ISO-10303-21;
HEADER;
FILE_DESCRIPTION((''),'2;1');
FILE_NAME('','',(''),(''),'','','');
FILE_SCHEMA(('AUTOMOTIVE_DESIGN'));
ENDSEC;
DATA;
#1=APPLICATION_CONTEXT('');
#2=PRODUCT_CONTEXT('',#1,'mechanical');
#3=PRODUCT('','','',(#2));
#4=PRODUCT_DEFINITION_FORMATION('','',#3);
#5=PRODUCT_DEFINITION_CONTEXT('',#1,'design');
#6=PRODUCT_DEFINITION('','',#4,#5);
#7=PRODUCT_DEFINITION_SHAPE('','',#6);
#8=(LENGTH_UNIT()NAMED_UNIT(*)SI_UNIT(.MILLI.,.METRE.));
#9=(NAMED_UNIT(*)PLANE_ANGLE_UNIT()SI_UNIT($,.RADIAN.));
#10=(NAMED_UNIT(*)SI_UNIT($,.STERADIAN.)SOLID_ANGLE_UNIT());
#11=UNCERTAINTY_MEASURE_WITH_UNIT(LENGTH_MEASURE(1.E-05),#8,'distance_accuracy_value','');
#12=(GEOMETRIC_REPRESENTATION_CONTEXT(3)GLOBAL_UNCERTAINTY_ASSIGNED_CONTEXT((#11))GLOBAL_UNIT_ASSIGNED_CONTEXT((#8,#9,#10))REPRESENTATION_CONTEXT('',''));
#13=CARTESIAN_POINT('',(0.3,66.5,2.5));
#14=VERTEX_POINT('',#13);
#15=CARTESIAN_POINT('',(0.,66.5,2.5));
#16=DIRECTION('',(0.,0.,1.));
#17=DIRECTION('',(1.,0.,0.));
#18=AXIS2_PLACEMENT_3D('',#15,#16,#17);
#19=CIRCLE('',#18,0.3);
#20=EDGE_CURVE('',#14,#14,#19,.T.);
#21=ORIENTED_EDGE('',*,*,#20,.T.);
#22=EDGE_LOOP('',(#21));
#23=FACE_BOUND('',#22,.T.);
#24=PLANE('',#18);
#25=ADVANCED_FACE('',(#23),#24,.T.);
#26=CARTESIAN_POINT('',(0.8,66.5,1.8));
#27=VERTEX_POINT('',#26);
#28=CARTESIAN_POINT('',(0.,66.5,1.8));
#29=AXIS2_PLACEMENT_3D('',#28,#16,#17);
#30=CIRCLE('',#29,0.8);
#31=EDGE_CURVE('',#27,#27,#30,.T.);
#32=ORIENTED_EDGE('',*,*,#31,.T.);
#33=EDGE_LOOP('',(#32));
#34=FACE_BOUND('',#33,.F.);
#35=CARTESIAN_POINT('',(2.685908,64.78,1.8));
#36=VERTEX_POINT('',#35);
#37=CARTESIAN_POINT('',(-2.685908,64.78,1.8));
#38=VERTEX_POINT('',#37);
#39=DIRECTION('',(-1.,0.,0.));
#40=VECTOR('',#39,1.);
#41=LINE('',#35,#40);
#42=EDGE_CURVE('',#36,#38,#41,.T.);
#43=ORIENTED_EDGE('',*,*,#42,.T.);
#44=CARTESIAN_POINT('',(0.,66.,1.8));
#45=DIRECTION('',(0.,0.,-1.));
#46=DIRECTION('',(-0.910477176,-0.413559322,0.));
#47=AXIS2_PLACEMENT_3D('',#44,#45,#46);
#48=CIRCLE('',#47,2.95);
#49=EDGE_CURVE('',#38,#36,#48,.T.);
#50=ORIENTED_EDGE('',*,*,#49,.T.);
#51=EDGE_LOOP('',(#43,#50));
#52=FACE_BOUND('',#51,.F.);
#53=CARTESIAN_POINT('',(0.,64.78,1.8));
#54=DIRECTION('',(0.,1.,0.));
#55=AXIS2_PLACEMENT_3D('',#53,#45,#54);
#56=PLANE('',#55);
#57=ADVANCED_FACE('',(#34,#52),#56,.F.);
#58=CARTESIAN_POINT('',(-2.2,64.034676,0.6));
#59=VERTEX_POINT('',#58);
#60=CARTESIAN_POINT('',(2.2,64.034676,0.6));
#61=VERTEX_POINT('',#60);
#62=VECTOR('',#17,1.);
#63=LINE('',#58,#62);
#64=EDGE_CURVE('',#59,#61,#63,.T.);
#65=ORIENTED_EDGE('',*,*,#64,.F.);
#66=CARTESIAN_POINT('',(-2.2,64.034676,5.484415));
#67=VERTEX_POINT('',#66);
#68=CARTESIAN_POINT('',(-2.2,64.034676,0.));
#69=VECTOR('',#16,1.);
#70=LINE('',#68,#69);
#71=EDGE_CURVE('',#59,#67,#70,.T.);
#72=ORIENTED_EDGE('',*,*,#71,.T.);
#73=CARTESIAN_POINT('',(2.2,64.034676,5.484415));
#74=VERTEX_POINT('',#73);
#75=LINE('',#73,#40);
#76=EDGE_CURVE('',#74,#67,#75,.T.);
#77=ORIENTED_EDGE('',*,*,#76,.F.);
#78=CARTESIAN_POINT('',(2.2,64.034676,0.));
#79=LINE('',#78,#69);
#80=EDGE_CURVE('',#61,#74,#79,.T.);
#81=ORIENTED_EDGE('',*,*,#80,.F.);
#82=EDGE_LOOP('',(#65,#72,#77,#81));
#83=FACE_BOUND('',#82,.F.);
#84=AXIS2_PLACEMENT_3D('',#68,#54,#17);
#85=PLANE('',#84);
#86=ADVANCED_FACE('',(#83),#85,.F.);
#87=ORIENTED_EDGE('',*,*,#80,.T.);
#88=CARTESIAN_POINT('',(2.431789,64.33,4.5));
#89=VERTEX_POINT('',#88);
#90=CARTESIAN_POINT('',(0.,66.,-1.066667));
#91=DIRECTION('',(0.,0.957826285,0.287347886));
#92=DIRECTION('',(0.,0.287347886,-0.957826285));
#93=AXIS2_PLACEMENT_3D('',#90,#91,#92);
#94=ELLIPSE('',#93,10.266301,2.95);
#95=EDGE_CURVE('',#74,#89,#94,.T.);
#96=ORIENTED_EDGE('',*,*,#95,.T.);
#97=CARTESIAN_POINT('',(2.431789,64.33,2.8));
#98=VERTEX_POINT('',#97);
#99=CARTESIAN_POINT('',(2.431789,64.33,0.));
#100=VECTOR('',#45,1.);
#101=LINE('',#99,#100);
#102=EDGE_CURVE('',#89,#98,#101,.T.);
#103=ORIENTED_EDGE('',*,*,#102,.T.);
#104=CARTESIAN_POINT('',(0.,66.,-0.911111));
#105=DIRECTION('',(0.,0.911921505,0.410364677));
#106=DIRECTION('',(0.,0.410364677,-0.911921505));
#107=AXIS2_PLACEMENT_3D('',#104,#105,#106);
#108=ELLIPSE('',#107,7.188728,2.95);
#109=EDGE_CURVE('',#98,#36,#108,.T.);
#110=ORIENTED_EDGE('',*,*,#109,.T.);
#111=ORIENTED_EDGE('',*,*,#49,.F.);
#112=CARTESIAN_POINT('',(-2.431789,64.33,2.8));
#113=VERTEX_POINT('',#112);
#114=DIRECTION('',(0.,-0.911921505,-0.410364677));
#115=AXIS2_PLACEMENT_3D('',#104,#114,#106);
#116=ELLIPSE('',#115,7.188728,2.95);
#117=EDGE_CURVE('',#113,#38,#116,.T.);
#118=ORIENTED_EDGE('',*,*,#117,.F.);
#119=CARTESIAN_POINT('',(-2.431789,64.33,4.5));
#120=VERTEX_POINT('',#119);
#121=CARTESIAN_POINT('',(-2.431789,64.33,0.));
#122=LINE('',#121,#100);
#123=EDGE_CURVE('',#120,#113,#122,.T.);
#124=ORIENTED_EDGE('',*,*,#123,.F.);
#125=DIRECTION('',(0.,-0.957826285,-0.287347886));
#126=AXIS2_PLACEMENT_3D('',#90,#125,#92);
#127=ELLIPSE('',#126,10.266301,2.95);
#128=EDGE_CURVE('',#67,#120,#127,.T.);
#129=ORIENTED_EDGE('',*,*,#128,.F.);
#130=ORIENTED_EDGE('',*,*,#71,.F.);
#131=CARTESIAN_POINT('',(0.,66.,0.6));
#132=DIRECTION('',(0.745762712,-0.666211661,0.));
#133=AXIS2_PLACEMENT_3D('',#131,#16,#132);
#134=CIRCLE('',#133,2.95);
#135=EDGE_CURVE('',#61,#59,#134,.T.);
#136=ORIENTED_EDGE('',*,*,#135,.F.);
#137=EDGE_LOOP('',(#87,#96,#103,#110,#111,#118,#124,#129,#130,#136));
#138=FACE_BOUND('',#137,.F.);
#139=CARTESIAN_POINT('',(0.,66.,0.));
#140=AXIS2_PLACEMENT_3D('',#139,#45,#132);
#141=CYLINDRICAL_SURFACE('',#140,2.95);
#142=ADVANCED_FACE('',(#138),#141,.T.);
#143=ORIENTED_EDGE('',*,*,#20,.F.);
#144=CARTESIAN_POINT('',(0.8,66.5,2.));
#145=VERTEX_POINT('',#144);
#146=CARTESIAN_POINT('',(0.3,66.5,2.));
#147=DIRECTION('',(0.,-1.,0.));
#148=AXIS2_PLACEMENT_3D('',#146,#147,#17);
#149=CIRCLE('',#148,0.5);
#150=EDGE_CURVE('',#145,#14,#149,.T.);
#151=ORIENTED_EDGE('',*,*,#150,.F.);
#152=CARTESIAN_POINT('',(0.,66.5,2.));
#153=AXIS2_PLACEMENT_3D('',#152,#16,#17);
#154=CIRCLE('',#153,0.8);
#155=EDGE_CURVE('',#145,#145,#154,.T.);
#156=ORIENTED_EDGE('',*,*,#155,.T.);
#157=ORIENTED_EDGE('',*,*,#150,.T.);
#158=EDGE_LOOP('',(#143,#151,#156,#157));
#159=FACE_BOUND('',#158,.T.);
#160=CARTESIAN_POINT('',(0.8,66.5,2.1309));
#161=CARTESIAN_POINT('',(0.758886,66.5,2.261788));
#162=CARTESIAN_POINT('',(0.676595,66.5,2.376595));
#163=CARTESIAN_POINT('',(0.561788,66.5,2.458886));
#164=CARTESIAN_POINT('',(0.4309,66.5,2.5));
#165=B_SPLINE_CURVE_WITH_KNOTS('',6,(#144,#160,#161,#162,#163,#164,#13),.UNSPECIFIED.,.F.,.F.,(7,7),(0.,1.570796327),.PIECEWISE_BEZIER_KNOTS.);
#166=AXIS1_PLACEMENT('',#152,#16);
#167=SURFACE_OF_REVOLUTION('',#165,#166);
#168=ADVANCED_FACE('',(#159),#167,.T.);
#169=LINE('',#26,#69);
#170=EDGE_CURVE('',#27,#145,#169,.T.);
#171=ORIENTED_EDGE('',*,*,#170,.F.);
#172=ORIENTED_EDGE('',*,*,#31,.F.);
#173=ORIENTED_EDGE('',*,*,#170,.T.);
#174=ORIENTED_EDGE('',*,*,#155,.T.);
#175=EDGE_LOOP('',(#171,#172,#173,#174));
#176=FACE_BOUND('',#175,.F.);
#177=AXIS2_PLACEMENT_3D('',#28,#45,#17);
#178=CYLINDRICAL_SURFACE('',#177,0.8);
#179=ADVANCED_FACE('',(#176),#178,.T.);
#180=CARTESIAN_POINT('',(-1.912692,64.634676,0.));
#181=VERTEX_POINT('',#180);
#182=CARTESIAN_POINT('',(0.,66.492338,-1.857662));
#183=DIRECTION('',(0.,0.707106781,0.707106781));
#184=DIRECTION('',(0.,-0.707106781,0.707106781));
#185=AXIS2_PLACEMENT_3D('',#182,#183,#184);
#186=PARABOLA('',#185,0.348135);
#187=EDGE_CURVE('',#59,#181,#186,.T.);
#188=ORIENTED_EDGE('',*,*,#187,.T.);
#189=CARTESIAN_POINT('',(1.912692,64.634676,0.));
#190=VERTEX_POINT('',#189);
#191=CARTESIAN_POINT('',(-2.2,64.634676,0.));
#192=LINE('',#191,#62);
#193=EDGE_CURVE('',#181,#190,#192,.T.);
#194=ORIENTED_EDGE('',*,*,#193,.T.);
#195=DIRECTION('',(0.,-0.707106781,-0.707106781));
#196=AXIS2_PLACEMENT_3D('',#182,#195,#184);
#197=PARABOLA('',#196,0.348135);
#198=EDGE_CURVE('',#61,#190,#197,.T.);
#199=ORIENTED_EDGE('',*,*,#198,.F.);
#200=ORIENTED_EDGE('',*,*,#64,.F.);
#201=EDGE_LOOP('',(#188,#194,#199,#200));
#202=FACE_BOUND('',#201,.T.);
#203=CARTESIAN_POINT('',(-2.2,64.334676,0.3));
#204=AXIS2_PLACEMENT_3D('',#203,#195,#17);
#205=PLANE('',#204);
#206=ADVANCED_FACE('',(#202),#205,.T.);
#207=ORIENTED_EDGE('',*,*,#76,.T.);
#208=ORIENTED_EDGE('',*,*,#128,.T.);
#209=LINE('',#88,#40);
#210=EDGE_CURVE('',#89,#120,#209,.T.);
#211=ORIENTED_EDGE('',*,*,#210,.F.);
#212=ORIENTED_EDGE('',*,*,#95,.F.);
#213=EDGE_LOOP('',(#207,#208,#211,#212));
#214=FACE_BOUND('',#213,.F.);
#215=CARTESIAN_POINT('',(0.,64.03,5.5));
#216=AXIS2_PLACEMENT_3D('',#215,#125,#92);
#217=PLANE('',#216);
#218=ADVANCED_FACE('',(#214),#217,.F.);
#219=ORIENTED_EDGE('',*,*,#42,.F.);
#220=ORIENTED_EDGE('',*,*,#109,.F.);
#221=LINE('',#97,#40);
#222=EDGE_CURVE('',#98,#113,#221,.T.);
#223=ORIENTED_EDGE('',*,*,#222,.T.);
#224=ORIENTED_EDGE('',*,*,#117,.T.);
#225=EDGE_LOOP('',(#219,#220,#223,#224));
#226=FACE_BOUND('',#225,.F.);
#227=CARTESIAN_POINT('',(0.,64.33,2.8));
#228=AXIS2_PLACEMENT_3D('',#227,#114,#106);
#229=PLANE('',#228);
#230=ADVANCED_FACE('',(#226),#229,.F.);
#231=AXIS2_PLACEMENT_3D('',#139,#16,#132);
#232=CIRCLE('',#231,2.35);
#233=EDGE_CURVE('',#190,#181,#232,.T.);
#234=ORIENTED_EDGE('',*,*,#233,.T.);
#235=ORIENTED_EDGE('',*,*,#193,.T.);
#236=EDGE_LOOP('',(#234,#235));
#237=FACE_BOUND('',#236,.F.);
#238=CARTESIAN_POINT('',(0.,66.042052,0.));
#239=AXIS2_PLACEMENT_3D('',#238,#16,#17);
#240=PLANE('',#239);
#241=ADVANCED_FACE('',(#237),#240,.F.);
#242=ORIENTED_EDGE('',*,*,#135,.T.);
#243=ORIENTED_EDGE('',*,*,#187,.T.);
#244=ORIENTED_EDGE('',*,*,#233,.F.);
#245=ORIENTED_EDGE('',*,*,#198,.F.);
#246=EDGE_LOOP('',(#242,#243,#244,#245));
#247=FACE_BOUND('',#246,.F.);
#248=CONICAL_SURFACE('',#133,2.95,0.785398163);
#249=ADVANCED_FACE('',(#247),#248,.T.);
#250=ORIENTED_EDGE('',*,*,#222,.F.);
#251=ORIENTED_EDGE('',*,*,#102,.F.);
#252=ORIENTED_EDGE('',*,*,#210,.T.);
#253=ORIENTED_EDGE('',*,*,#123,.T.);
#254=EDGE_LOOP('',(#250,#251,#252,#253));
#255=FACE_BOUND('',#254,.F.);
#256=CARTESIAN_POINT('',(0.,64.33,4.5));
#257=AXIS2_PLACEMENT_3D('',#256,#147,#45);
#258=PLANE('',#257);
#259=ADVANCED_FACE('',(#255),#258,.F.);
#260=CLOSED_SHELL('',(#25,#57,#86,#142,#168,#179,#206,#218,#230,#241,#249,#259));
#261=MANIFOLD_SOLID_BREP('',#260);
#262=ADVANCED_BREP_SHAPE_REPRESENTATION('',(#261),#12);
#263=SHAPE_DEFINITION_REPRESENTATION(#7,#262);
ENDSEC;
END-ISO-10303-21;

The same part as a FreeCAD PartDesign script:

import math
import FreeCAD as App
import Part
import Sketcher
from FreeCAD import Vector


def edges_at(feature, points):
    """Names of the edges that pass closest to the given points."""
    edges = feature.Shape.Edges
    near = lambda p: min(range(len(edges)), key=lambda i: edges[i].distToShape(Part.Vertex(*p))[0])
    return sorted({f"Edge{near(p) + 1}" for p in points})

doc = App.newDocument("Part")
params = doc.addObject("Spreadsheet::Sheet", "Params")
for row, (alias, value) in enumerate([
    ("sketch1_radius", "2.95 mm"),
    ("sketch1_width", "4.4 mm"),
    ("pad1_length", "5.5 mm"),
    ("sketch2_height", "1.7 mm"),
    ("sketch2_height2", "3.7 mm"),
    ("sketch2_width", "5.22 mm"),
    ("sketch2_width2", "5.97 mm"),
    ("sketch3_diameter", "1.6 mm"),
    ("pad2_length", "0.7 mm"),
    ("fillet_radius", "0.5 mm"),
    ("chamfer_size", "0.6 mm"),
], start=1):
    params.set(f"A{row}", alias)
    params.set(f"B{row}", "=" + value)
    params.setAlias(f"B{row}", alias)

body = doc.addObject("PartDesign::Body", "Body")

sketch1 = doc.addObject("Sketcher::SketchObject", "Sketch")
body.addObject(sketch1)
sketch1.AttachmentSupport = (doc.XY_Plane, [""])
sketch1.MapMode = "FlatFace"
sketch1.addGeometry(Part.ArcOfCircle(Part.Circle(Vector(0, 0, 0), Vector(0, 0, 1), 3), math.radians(-42), math.radians(222)), False)
sketch1.addGeometry(Part.LineSegment(Vector(-2.2, -2, 0), Vector(2.2, -2, 0)), False)
sketch1.addConstraint(Sketcher.Constraint("Coincident", 0, 1, 1, 2))
sketch1.addConstraint(Sketcher.Constraint("Coincident", 1, 1, 0, 2))
sketch1.addConstraint(Sketcher.Constraint("Horizontal", 1))
sketch1.addConstraint(Sketcher.Constraint("Coincident", 0, 3, -1, 1))
sketch1.addConstraint(Sketcher.Constraint("Radius", 0, 2.95))
sketch1.addConstraint(Sketcher.Constraint("DistanceX", 1, 1, 1, 2, 4.4))
sketch1.setExpression("Constraints[4]", "Params.sketch1_radius")
sketch1.setExpression("Constraints[5]", "Params.sketch1_width")
pad1 = doc.addObject("PartDesign::Pad", "Pad")
body.addObject(pad1)
pad1.Profile = sketch1
pad1.setExpression("Length", "Params.pad1_length")

sketch2 = doc.addObject("Sketcher::SketchObject", "Sketch001")
body.addObject(sketch2)
sketch2.AttachmentSupport = (doc.YZ_Plane, [""])
sketch2.MapMode = "FlatFace"
sketch2.addGeometry(Part.LineSegment(Vector(-2, 5.5, 0), Vector(-1.7, 4.5, 0)), False)
sketch2.addGeometry(Part.LineSegment(Vector(-1.7, 4.5, 0), Vector(-1.7, 2.8, 0)), False)
sketch2.addGeometry(Part.LineSegment(Vector(-1.7, 2.8, 0), Vector(-1.2, 1.8, 0)), False)
sketch2.addGeometry(Part.LineSegment(Vector(-1.2, 1.8, 0), Vector(4, 1.8, 0)), False)
sketch2.addGeometry(Part.LineSegment(Vector(4, 1.8, 0), Vector(4, 5.5, 0)), False)
sketch2.addGeometry(Part.LineSegment(Vector(4, 5.5, 0), Vector(-2, 5.5, 0)), False)
sketch2.addConstraint(Sketcher.Constraint("Coincident", 0, 2, 1, 1))
sketch2.addConstraint(Sketcher.Constraint("Coincident", 1, 2, 2, 1))
sketch2.addConstraint(Sketcher.Constraint("Coincident", 2, 2, 3, 1))
sketch2.addConstraint(Sketcher.Constraint("Coincident", 3, 2, 4, 1))
sketch2.addConstraint(Sketcher.Constraint("Coincident", 4, 2, 5, 1))
sketch2.addConstraint(Sketcher.Constraint("Coincident", 5, 2, 0, 1))
sketch2.addConstraint(Sketcher.Constraint("Vertical", 1))
sketch2.addConstraint(Sketcher.Constraint("Horizontal", 3))
sketch2.addConstraint(Sketcher.Constraint("Vertical", 4))
sketch2.addConstraint(Sketcher.Constraint("Horizontal", 5))
sketch2.addConstraint(Sketcher.Constraint("DistanceY", 1, 2, 1, 1, 1.7))
sketch2.addConstraint(Sketcher.Constraint("DistanceY", 4, 1, 4, 2, 3.7))
sketch2.addConstraint(Sketcher.Constraint("DistanceX", -1, 1, 3, 2, 4.0))
sketch2.addConstraint(Sketcher.Constraint("DistanceY", 2, 2, 1, 2, 1.0))
sketch2.addConstraint(Sketcher.Constraint("DistanceX", 3, 1, 3, 2, 5.22))
sketch2.addConstraint(Sketcher.Constraint("DistanceX", 5, 2, 5, 1, 5.97))
sketch2.addConstraint(Sketcher.Constraint("DistanceY", -1, 1, 0, 2, 4.5))
sketch2.addConstraint(Sketcher.Constraint("DistanceX", 5, 2, 0, 2, 0.3))
sketch2.setExpression("Constraints[10]", "Params.sketch2_height")
sketch2.setExpression("Constraints[11]", "Params.sketch2_height2")
sketch2.setExpression("Constraints[14]", "Params.sketch2_width")
sketch2.setExpression("Constraints[15]", "Params.sketch2_width2")
pocket1 = doc.addObject("PartDesign::Pocket", "Pocket")
body.addObject(pocket1)
pocket1.Profile = sketch2
pocket1.Type = "ThroughAll"
pocket1.Midplane = True

sketch3 = doc.addObject("Sketcher::SketchObject", "Sketch002")
body.addObject(sketch3)
sketch3.AttachmentSupport = (doc.XY_Plane, [""])
sketch3.MapMode = "FlatFace"
sketch3.AttachmentOffset = App.Placement(Vector(0, 0, 1.8), App.Rotation())
sketch3.addGeometry(Part.Circle(Vector(0, 0.5, 0), Vector(0, 0, 1), 0.8), False)
sketch3.addConstraint(Sketcher.Constraint("PointOnObject", 0, 3, -2))
sketch3.addConstraint(Sketcher.Constraint("Diameter", 0, 1.6))
sketch3.addConstraint(Sketcher.Constraint("DistanceY", -1, 1, 0, 3, 0.5))
sketch3.setExpression("Constraints[1]", "Params.sketch3_diameter")
pad2 = doc.addObject("PartDesign::Pad", "Pad001")
body.addObject(pad2)
pad2.Profile = sketch3
pad2.setExpression("Length", "Params.pad2_length")
doc.recompute()

fillet = doc.addObject("PartDesign::Fillet", "Fillet")
body.addObject(fillet)
fillet.Base = (pad2, edges_at(pad2, [(-0.8, 0.5, 2.5)]))
fillet.setExpression("Radius", "Params.fillet_radius")
doc.recompute()

chamfer = doc.addObject("PartDesign::Chamfer", "Chamfer")
body.addObject(chamfer)
chamfer.Base = (fillet, edges_at(fillet, [(0, 2.95, 0), (0, -1.965, 0)]))
chamfer.setExpression("Size", "Params.chamfer_size")
body2 = doc.addObject("PartDesign::Body", "Body001")
doc.recompute()

body.Placement = App.Placement(Vector(0, 66, 0), App.Rotation(Vector(0, 0, 1), 0))
boolean = doc.addObject("PartDesign::Boolean", "Boolean")
body2.addObject(boolean)
boolean.Type = "Fuse"
boolean.addObjects([body])

doc.recompute()
